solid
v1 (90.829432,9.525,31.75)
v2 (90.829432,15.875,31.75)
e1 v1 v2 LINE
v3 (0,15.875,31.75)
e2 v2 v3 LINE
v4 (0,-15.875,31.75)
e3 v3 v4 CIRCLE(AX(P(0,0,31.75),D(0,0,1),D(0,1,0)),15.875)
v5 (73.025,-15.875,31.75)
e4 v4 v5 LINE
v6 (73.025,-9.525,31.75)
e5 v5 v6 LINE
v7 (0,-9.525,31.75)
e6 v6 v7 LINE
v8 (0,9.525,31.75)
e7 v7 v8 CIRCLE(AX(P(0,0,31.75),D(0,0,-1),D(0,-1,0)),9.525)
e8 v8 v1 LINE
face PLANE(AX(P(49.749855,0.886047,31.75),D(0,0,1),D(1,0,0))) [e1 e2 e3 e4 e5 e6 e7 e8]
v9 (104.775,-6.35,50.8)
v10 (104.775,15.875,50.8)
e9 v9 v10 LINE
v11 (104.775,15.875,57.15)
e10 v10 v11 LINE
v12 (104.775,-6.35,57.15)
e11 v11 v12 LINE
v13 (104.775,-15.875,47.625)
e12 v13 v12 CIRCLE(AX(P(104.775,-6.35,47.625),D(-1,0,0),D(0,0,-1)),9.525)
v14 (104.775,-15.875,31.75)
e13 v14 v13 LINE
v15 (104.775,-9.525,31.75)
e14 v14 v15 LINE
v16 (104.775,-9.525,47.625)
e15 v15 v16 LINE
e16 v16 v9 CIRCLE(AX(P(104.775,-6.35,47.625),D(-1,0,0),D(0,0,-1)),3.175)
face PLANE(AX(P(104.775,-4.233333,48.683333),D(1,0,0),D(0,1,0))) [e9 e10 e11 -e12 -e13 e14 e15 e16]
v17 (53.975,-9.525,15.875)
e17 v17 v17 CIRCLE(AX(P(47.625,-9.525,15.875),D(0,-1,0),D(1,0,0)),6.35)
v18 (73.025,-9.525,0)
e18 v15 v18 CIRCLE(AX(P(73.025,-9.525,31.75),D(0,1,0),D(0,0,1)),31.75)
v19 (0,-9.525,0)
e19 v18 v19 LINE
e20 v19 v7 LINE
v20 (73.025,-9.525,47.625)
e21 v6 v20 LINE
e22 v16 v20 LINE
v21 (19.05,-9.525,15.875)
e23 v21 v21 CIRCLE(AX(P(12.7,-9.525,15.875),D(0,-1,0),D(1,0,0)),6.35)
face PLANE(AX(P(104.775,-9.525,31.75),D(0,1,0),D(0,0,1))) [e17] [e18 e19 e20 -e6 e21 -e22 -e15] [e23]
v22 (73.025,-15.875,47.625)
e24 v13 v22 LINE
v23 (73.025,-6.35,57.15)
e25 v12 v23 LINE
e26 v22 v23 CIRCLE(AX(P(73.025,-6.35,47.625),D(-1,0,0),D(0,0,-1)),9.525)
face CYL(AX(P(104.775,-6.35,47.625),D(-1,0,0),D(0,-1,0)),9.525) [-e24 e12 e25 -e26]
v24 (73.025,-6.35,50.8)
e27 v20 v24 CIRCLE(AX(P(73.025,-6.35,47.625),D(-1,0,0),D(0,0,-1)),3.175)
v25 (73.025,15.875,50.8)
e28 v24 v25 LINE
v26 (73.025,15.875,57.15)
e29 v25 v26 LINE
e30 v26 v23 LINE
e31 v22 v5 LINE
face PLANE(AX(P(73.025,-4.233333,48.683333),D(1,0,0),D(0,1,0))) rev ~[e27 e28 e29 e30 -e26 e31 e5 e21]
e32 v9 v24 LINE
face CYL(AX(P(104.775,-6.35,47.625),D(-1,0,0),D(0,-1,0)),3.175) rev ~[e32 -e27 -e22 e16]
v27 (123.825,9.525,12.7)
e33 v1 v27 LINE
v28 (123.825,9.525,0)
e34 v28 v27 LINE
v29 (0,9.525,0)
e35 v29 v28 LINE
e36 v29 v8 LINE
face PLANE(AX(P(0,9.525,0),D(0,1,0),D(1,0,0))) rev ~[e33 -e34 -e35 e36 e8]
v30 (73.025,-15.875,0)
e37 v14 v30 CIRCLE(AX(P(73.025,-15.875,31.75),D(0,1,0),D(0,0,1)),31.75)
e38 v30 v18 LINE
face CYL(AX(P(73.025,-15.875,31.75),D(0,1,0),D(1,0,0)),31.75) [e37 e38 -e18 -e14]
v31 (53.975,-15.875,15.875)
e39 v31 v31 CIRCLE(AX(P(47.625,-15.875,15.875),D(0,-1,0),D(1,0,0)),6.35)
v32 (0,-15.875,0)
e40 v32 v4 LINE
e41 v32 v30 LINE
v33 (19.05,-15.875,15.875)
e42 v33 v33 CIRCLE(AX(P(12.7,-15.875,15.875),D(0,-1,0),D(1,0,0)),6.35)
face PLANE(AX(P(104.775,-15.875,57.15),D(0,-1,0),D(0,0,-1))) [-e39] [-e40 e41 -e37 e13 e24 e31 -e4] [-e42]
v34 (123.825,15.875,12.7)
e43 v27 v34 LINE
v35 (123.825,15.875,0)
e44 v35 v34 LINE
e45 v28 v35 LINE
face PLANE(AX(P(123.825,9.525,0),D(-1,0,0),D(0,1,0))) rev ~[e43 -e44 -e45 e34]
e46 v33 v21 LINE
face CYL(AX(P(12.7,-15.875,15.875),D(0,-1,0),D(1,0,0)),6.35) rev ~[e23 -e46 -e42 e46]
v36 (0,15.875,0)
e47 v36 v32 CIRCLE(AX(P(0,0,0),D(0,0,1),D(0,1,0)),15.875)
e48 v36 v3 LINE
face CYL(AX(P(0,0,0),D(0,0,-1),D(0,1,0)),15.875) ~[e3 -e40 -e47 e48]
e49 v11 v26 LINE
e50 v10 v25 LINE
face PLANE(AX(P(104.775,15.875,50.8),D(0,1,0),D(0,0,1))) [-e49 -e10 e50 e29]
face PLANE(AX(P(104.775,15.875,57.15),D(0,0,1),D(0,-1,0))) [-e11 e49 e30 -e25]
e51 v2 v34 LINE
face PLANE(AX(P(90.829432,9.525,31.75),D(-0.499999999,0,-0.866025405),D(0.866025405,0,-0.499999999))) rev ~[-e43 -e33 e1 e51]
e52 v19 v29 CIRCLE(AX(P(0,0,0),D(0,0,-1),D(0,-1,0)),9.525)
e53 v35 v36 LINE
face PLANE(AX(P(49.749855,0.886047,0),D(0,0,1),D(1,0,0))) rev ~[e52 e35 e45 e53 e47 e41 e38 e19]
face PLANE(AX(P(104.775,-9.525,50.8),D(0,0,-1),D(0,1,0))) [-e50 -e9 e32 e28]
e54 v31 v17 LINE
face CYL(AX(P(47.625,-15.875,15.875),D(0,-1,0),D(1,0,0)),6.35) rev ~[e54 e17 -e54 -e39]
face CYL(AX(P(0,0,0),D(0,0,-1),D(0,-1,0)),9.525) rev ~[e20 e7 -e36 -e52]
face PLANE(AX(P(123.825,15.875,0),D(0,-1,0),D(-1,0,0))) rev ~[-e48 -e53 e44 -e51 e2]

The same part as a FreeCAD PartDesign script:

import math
import FreeCAD as App
import Part
import Sketcher
from FreeCAD import Vector
Q = App.Units.Quantity


def edges_at(feature, points):
    """Names of the edges that pass closest to the given points."""
    edges = feature.Shape.Edges
    near = lambda p: min(range(len(edges)), key=lambda i: edges[i].distToShape(Part.Vertex(*p))[0])
    return sorted({f"Edge{near(p) + 1}" for p in points})


def add_polygon(sketch, points):
    """Adds a closed chain of lines whose ends are joined by coincident constraints."""
    first, n = sketch.GeometryCount, len(points)
    for a, b in zip(points, points[1:] + points[:1]):
        sketch.addGeometry(Part.LineSegment(App.Vector(*a, 0), App.Vector(*b, 0)), False)
    for i in range(n):
        sketch.addConstraint(Sketcher.Constraint("Coincident", first + i, 2, first + (i + 1) % n, 1))

doc = App.newDocument("Part")
body = doc.addObject("PartDesign::Body", "Body")

# Sketch on XY plane
sketch1 = body.newObject("Sketcher::SketchObject", "Sketch")
sketch1.AttachmentSupport = (doc.getObject("XY_Plane"), [""])
sketch1.MapMode = "FlatFace"
sketch1.addGeometry(Part.LineSegment(Vector(123.825, 15.875, 0), Vector(0, 15.875, 0)), False)
sketch1.addGeometry(Part.ArcOfCircle(Part.Circle(Vector(0, 0, 0), Vector(0, 0, 1), 15.875), math.radians(90), math.radians(270)), False)
sketch1.addGeometry(Part.LineSegment(Vector(0, -15.875, 0), Vector(104.775, -15.875, 0)), False)
sketch1.addGeometry(Part.LineSegment(Vector(104.775, -15.875, 0), Vector(104.775, -9.525, 0)), False)
sketch1.addGeometry(Part.LineSegment(Vector(104.775, -9.525, 0), Vector(0, -9.525, 0)), False)
sketch1.addGeometry(Part.ArcOfCircle(Part.Circle(Vector(0, 0, 0), Vector(0, 0, 1), 9.525), math.radians(90), math.radians(270)), False)
sketch1.addGeometry(Part.LineSegment(Vector(0, 9.525, 0), Vector(123.825, 9.525, 0)), False)
sketch1.addGeometry(Part.LineSegment(Vector(123.825, 9.525, 0), Vector(123.825, 15.875, 0)), False)
sketch1.addConstraint(Sketcher.Constraint("Tangent", 0, 2, 1, 1))
sketch1.addConstraint(Sketcher.Constraint("Tangent", 1, 2, 2, 1))
sketch1.addConstraint(Sketcher.Constraint("Coincident", 2, 2, 3, 1))
sketch1.addConstraint(Sketcher.Constraint("Coincident", 3, 2, 4, 1))
sketch1.addConstraint(Sketcher.Constraint("Tangent", 4, 2, 5, 2))
sketch1.addConstraint(Sketcher.Constraint("Tangent", 5, 1, 6, 1))
sketch1.addConstraint(Sketcher.Constraint("Coincident", 6, 2, 7, 1))
sketch1.addConstraint(Sketcher.Constraint("Coincident", 7, 2, 0, 1))
sketch1.addConstraint(Sketcher.Constraint("Horizontal", 0))
sketch1.addConstraint(Sketcher.Constraint("Horizontal", 2))
sketch1.addConstraint(Sketcher.Constraint("Vertical", 3))
sketch1.addConstraint(Sketcher.Constraint("Horizontal", 4))
sketch1.addConstraint(Sketcher.Constraint("Horizontal", 6))
sketch1.addConstraint(Sketcher.Constraint("Vertical", 7))
sketch1.addConstraint(Sketcher.Constraint("Coincident", 1, 3, -1, 1))
sketch1.addConstraint(Sketcher.Constraint("Coincident", 5, 3, -1, 1))
sketch1.addConstraint(Sketcher.Constraint("Radius", 1, Q("0.625 in")))
sketch1.addConstraint(Sketcher.Constraint("Radius", 5, Q("0.375 in")))
sketch1.addConstraint(Sketcher.Constraint("DistanceX", 0, 2, 0, 1, Q("4.875 in")))
sketch1.addConstraint(Sketcher.Constraint("DistanceX", 2, 1, 2, 2, Q("4.125 in")))
pad1 = body.newObject("PartDesign::Pad", "Pad")
pad1.Profile = sketch1
pad1.Length = Q("1.25 in")

# Sketch on XZ plane
sketch2 = body.newObject("Sketcher::SketchObject", "Sketch001")
sketch2.AttachmentSupport = (doc.getObject("XZ_Plane"), [""])
sketch2.MapMode = "FlatFace"
sketch2.AttachmentOffset = App.Placement(Vector(0, 0, -0.375 * 25.4), App.Rotation())
add_polygon(sketch2, [(123.825, 31.75), (90.829432, 31.75), (123.825, 12.7)])  # lines 0-2
sketch2.addConstraint(Sketcher.Constraint("Horizontal", 0))
sketch2.addConstraint(Sketcher.Constraint("Vertical", 2))
sketch2.addConstraint(Sketcher.Constraint("Angle", 1, Q("-30 deg")))
sketch2.addConstraint(Sketcher.Constraint("Distance", 1, Q("1.5 in")))
sketch2.addConstraint(Sketcher.Constraint("DistanceY", -1, 1, 1, 2, Q("0.5 in")))
sketch2.addConstraint(Sketcher.Constraint("DistanceX", -1, 1, 1, 2, Q("4.875 in")))
pocket1 = body.newObject("PartDesign::Pocket", "Pocket")
pocket1.Profile = sketch2
pocket1.Length = Q("1 in")
body2 = doc.addObject("PartDesign::Body", "Body001")

# Sketch on YZ plane
sketch3 = body2.newObject("Sketcher::SketchObject", "Sketch002")
sketch3.AttachmentSupport = (doc.getObject("YZ_Plane001"), [""])
sketch3.MapMode = "FlatFace"
sketch3.AttachmentOffset = App.Placement(Vector(0, 0, 4.125 * 25.4), App.Rotation())
add_polygon(sketch3, [(-15.875, 57.15), (-15.875, 31.75), (-9.525, 31.75), (-9.525, 50.8), (15.875, 50.8), (15.875, 57.15)])  # lines 0-5
sketch3.addConstraint(Sketcher.Constraint("Vertical", 0))
sketch3.addConstraint(Sketcher.Constraint("Horizontal", 1))
sketch3.addConstraint(Sketcher.Constraint("Vertical", 2))
sketch3.addConstraint(Sketcher.Constraint("Horizontal", 3))
sketch3.addConstraint(Sketcher.Constraint("Vertical", 4))
sketch3.addConstraint(Sketcher.Constraint("Horizontal", 5))
sketch3.addConstraint(Sketcher.Constraint("Equal", 3, 0))
sketch3.addConstraint(Sketcher.Constraint("Equal", 1, 4))
sketch3.addConstraint(Sketcher.Constraint("DistanceX", 3, 1, 3, 2, Q("1 in")))
sketch3.addConstraint(Sketcher.Constraint("DistanceY", -1, 1, 2, 2, Q("2 in")))
sketch3.addConstraint(Sketcher.Constraint("DistanceX", 1, 1, 1, 2, Q("0.25 in")))
sketch3.addConstraint(Sketcher.Constraint("DistanceX", 0, 2, -1, 1, Q("0.625 in")))
pad2 = body2.newObject("PartDesign::Pad", "Pad001")
pad2.Profile = sketch3
pad2.Length = Q("1.25 in")
pad2.Reversed = True
doc.recompute()

boolean = body.newObject("PartDesign::Boolean", "Boolean")
boolean.Type = "Fuse"
boolean.addObjects([body2])
doc.recompute()

fillet = body.newObject("PartDesign::Fillet", "Fillet")
fillet.Base = (boolean, edges_at(boolean, [(104.775, -12.7, 0)]))
fillet.Radius = Q("1.25 in")
doc.recompute()

fillet2 = body.newObject("PartDesign::Fillet", "Fillet001")
fillet2.Base = (fillet, edges_at(fillet, [(88.9, -15.875, 57.15)]))
fillet2.Radius = Q("0.375 in")
doc.recompute()

fillet3 = body.newObject("PartDesign::Fillet", "Fillet002")
fillet3.Base = (fillet2, edges_at(fillet2, [(88.9, -9.525, 50.8)]))
fillet3.Radius = Q("0.125 in")

# Sketch on XZ plane
sketch4 = body.newObject("Sketcher::SketchObject", "Sketch003")
sketch4.AttachmentSupport = (doc.getObject("XZ_Plane"), [""])
sketch4.MapMode = "FlatFace"
sketch4.AttachmentOffset = App.Placement(Vector(0, 0, 0.625 * 25.4), App.Rotation())
sketch4.addGeometry(Part.Circle(Vector(12.7, 15.875, 0), Vector(0, 0, 1), 6.35), False)
sketch4.addGeometry(Part.Circle(Vector(47.625, 15.875, 0), Vector(0, 0, 1), 6.35), False)
sketch4.addConstraint(Sketcher.Constraint("Equal", 0, 1))
sketch4.addConstraint(Sketcher.Constraint("Horizontal", 0, 3, 1, 3))
sketch4.addConstraint(Sketcher.Constraint("Diameter", 0, Q("0.5 in")))
sketch4.addConstraint(Sketcher.Constraint("DistanceX", -1, 1, 0, 3, Q("0.5 in")))
sketch4.addConstraint(Sketcher.Constraint("DistanceY", -1, 1, 0, 3, Q("0.625 in")))
sketch4.addConstraint(Sketcher.Constraint("DistanceX", -1, 1, 1, 3, Q("1.875 in")))
pocket2 = body.newObject("PartDesign::Pocket", "Pocket001")
pocket2.Profile = sketch4
pocket2.Length = Q("0.25 in")

doc.recompute()
